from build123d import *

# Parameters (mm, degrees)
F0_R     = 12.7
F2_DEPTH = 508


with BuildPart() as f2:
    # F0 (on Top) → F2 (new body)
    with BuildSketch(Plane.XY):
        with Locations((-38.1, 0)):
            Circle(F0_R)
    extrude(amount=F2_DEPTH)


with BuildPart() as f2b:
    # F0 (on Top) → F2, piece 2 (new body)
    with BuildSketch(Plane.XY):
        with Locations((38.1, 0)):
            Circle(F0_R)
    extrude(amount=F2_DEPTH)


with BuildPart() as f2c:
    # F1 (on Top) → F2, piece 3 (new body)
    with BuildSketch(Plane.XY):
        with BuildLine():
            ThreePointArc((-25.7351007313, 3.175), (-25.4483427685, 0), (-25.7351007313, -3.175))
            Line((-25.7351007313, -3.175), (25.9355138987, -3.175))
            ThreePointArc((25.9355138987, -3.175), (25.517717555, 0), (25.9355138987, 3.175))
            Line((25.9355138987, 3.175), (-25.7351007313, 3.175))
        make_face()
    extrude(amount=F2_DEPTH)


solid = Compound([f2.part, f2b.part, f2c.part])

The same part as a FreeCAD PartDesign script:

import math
import FreeCAD as App
import Part
import Sketcher
from FreeCAD import Vector
Q = App.Units.Quantity

doc = App.newDocument("Part")
body = doc.addObject("PartDesign::Body", "Body")

# Sketch on XY plane
sketch1 = body.newObject("Sketcher::SketchObject", "Sketch")
sketch1.AttachmentSupport = (doc.getObject("XY_Plane"), [""])
sketch1.MapMode = "FlatFace"
sketch1.addGeometry(Part.Circle(Vector(-38.1, 0, 0), Vector(0, 0, 1), 12.7), False)
sketch1.addConstraint(Sketcher.Constraint("PointOnObject", 0, 3, -1))
sketch1.addConstraint(Sketcher.Constraint("Diameter", 0, Q("1 in")))
sketch1.addConstraint(Sketcher.Constraint("DistanceX", 0, 3, -1, 1, Q("1.5 in")))
pad1 = body.newObject("PartDesign::Pad", "Pad")
pad1.Profile = sketch1
pad1.Length = Q("20 in")
body2 = doc.addObject("PartDesign::Body", "Body001")

# Sketch on XY plane
sketch2 = body2.newObject("Sketcher::SketchObject", "Sketch001")
sketch2.AttachmentSupport = (doc.getObject("XY_Plane001"), [""])
sketch2.MapMode = "FlatFace"
sketch2.addGeometry(Part.Circle(Vector(38.1, 0, 0), Vector(0, 0, 1), 12.7), False)
sketch2.addConstraint(Sketcher.Constraint("PointOnObject", 0, 3, -1))
sketch2.addConstraint(Sketcher.Constraint("Diameter", 0, Q("1 in")))
sketch2.addConstraint(Sketcher.Constraint("DistanceX", -1, 1, 0, 3, Q("1.5 in")))
pad2 = body2.newObject("PartDesign::Pad", "Pad001")
pad2.Profile = sketch2
pad2.Length = Q("20 in")
body3 = doc.addObject("PartDesign::Body", "Body002")

# Sketch on XY plane
sketch3 = body3.newObject("Sketcher::SketchObject", "Sketch002")
sketch3.AttachmentSupport = (doc.getObject("XY_Plane002"), [""])
sketch3.MapMode = "FlatFace"
sketch3.addGeometry(Part.ArcOfCircle(Part.Circle(Vector(-43.168609, 0, 0), Vector(0, 0, 1), 17.720267), math.radians(-10.321615), math.radians(10.321615)), False)
sketch3.addGeometry(Part.LineSegment(Vector(-25.735101, -3.175, 0), Vector(25.935514, -3.175, 0)), False)
sketch3.addGeometry(Part.ArcOfCircle(Part.Circle(Vector(37.790657, 0, 0), Vector(0, 0, 1), 12.27294), math.radians(165.007107), math.radians(194.992893)), False)
sketch3.addGeometry(Part.LineSegment(Vector(25.935514, 3.175, 0), Vector(-25.735101, 3.175, 0)), False)
sketch3.addConstraint(Sketcher.Constraint("Coincident", 0, 1, 1, 1))
sketch3.addConstraint(Sketcher.Constraint("Coincident", 1, 2, 2, 2))
sketch3.addConstraint(Sketcher.Constraint("Coincident", 2, 1, 3, 1))
sketch3.addConstraint(Sketcher.Constraint("Coincident", 3, 2, 0, 2))
sketch3.addConstraint(Sketcher.Constraint("Horizontal", 1))
sketch3.addConstraint(Sketcher.Constraint("Horizontal", 3))
sketch3.addConstraint(Sketcher.Constraint("Symmetric", 1, 2, 2, 1, -1))
sketch3.addConstraint(Sketcher.Constraint("PointOnObject", 0, 3, -1))
sketch3.addConstraint(Sketcher.Constraint("DistanceY", 1, 2, 2, 1, Q("0.25 in")))
sketch3.addConstraint(Sketcher.Constraint("Radius", 2, 12.27294))
sketch3.addConstraint(Sketcher.Constraint("Radius", 0, 17.720267))
sketch3.addConstraint(Sketcher.Constraint("DistanceX", 0, 1, -1, 1, 25.735101))
sketch3.addConstraint(Sketcher.Constraint("DistanceX", 1, 1, 1, 2, 51.670615))
pad3 = body3.newObject("PartDesign::Pad", "Pad002")
pad3.Profile = sketch3
pad3.Length = Q("20 in")

doc.recompute()
